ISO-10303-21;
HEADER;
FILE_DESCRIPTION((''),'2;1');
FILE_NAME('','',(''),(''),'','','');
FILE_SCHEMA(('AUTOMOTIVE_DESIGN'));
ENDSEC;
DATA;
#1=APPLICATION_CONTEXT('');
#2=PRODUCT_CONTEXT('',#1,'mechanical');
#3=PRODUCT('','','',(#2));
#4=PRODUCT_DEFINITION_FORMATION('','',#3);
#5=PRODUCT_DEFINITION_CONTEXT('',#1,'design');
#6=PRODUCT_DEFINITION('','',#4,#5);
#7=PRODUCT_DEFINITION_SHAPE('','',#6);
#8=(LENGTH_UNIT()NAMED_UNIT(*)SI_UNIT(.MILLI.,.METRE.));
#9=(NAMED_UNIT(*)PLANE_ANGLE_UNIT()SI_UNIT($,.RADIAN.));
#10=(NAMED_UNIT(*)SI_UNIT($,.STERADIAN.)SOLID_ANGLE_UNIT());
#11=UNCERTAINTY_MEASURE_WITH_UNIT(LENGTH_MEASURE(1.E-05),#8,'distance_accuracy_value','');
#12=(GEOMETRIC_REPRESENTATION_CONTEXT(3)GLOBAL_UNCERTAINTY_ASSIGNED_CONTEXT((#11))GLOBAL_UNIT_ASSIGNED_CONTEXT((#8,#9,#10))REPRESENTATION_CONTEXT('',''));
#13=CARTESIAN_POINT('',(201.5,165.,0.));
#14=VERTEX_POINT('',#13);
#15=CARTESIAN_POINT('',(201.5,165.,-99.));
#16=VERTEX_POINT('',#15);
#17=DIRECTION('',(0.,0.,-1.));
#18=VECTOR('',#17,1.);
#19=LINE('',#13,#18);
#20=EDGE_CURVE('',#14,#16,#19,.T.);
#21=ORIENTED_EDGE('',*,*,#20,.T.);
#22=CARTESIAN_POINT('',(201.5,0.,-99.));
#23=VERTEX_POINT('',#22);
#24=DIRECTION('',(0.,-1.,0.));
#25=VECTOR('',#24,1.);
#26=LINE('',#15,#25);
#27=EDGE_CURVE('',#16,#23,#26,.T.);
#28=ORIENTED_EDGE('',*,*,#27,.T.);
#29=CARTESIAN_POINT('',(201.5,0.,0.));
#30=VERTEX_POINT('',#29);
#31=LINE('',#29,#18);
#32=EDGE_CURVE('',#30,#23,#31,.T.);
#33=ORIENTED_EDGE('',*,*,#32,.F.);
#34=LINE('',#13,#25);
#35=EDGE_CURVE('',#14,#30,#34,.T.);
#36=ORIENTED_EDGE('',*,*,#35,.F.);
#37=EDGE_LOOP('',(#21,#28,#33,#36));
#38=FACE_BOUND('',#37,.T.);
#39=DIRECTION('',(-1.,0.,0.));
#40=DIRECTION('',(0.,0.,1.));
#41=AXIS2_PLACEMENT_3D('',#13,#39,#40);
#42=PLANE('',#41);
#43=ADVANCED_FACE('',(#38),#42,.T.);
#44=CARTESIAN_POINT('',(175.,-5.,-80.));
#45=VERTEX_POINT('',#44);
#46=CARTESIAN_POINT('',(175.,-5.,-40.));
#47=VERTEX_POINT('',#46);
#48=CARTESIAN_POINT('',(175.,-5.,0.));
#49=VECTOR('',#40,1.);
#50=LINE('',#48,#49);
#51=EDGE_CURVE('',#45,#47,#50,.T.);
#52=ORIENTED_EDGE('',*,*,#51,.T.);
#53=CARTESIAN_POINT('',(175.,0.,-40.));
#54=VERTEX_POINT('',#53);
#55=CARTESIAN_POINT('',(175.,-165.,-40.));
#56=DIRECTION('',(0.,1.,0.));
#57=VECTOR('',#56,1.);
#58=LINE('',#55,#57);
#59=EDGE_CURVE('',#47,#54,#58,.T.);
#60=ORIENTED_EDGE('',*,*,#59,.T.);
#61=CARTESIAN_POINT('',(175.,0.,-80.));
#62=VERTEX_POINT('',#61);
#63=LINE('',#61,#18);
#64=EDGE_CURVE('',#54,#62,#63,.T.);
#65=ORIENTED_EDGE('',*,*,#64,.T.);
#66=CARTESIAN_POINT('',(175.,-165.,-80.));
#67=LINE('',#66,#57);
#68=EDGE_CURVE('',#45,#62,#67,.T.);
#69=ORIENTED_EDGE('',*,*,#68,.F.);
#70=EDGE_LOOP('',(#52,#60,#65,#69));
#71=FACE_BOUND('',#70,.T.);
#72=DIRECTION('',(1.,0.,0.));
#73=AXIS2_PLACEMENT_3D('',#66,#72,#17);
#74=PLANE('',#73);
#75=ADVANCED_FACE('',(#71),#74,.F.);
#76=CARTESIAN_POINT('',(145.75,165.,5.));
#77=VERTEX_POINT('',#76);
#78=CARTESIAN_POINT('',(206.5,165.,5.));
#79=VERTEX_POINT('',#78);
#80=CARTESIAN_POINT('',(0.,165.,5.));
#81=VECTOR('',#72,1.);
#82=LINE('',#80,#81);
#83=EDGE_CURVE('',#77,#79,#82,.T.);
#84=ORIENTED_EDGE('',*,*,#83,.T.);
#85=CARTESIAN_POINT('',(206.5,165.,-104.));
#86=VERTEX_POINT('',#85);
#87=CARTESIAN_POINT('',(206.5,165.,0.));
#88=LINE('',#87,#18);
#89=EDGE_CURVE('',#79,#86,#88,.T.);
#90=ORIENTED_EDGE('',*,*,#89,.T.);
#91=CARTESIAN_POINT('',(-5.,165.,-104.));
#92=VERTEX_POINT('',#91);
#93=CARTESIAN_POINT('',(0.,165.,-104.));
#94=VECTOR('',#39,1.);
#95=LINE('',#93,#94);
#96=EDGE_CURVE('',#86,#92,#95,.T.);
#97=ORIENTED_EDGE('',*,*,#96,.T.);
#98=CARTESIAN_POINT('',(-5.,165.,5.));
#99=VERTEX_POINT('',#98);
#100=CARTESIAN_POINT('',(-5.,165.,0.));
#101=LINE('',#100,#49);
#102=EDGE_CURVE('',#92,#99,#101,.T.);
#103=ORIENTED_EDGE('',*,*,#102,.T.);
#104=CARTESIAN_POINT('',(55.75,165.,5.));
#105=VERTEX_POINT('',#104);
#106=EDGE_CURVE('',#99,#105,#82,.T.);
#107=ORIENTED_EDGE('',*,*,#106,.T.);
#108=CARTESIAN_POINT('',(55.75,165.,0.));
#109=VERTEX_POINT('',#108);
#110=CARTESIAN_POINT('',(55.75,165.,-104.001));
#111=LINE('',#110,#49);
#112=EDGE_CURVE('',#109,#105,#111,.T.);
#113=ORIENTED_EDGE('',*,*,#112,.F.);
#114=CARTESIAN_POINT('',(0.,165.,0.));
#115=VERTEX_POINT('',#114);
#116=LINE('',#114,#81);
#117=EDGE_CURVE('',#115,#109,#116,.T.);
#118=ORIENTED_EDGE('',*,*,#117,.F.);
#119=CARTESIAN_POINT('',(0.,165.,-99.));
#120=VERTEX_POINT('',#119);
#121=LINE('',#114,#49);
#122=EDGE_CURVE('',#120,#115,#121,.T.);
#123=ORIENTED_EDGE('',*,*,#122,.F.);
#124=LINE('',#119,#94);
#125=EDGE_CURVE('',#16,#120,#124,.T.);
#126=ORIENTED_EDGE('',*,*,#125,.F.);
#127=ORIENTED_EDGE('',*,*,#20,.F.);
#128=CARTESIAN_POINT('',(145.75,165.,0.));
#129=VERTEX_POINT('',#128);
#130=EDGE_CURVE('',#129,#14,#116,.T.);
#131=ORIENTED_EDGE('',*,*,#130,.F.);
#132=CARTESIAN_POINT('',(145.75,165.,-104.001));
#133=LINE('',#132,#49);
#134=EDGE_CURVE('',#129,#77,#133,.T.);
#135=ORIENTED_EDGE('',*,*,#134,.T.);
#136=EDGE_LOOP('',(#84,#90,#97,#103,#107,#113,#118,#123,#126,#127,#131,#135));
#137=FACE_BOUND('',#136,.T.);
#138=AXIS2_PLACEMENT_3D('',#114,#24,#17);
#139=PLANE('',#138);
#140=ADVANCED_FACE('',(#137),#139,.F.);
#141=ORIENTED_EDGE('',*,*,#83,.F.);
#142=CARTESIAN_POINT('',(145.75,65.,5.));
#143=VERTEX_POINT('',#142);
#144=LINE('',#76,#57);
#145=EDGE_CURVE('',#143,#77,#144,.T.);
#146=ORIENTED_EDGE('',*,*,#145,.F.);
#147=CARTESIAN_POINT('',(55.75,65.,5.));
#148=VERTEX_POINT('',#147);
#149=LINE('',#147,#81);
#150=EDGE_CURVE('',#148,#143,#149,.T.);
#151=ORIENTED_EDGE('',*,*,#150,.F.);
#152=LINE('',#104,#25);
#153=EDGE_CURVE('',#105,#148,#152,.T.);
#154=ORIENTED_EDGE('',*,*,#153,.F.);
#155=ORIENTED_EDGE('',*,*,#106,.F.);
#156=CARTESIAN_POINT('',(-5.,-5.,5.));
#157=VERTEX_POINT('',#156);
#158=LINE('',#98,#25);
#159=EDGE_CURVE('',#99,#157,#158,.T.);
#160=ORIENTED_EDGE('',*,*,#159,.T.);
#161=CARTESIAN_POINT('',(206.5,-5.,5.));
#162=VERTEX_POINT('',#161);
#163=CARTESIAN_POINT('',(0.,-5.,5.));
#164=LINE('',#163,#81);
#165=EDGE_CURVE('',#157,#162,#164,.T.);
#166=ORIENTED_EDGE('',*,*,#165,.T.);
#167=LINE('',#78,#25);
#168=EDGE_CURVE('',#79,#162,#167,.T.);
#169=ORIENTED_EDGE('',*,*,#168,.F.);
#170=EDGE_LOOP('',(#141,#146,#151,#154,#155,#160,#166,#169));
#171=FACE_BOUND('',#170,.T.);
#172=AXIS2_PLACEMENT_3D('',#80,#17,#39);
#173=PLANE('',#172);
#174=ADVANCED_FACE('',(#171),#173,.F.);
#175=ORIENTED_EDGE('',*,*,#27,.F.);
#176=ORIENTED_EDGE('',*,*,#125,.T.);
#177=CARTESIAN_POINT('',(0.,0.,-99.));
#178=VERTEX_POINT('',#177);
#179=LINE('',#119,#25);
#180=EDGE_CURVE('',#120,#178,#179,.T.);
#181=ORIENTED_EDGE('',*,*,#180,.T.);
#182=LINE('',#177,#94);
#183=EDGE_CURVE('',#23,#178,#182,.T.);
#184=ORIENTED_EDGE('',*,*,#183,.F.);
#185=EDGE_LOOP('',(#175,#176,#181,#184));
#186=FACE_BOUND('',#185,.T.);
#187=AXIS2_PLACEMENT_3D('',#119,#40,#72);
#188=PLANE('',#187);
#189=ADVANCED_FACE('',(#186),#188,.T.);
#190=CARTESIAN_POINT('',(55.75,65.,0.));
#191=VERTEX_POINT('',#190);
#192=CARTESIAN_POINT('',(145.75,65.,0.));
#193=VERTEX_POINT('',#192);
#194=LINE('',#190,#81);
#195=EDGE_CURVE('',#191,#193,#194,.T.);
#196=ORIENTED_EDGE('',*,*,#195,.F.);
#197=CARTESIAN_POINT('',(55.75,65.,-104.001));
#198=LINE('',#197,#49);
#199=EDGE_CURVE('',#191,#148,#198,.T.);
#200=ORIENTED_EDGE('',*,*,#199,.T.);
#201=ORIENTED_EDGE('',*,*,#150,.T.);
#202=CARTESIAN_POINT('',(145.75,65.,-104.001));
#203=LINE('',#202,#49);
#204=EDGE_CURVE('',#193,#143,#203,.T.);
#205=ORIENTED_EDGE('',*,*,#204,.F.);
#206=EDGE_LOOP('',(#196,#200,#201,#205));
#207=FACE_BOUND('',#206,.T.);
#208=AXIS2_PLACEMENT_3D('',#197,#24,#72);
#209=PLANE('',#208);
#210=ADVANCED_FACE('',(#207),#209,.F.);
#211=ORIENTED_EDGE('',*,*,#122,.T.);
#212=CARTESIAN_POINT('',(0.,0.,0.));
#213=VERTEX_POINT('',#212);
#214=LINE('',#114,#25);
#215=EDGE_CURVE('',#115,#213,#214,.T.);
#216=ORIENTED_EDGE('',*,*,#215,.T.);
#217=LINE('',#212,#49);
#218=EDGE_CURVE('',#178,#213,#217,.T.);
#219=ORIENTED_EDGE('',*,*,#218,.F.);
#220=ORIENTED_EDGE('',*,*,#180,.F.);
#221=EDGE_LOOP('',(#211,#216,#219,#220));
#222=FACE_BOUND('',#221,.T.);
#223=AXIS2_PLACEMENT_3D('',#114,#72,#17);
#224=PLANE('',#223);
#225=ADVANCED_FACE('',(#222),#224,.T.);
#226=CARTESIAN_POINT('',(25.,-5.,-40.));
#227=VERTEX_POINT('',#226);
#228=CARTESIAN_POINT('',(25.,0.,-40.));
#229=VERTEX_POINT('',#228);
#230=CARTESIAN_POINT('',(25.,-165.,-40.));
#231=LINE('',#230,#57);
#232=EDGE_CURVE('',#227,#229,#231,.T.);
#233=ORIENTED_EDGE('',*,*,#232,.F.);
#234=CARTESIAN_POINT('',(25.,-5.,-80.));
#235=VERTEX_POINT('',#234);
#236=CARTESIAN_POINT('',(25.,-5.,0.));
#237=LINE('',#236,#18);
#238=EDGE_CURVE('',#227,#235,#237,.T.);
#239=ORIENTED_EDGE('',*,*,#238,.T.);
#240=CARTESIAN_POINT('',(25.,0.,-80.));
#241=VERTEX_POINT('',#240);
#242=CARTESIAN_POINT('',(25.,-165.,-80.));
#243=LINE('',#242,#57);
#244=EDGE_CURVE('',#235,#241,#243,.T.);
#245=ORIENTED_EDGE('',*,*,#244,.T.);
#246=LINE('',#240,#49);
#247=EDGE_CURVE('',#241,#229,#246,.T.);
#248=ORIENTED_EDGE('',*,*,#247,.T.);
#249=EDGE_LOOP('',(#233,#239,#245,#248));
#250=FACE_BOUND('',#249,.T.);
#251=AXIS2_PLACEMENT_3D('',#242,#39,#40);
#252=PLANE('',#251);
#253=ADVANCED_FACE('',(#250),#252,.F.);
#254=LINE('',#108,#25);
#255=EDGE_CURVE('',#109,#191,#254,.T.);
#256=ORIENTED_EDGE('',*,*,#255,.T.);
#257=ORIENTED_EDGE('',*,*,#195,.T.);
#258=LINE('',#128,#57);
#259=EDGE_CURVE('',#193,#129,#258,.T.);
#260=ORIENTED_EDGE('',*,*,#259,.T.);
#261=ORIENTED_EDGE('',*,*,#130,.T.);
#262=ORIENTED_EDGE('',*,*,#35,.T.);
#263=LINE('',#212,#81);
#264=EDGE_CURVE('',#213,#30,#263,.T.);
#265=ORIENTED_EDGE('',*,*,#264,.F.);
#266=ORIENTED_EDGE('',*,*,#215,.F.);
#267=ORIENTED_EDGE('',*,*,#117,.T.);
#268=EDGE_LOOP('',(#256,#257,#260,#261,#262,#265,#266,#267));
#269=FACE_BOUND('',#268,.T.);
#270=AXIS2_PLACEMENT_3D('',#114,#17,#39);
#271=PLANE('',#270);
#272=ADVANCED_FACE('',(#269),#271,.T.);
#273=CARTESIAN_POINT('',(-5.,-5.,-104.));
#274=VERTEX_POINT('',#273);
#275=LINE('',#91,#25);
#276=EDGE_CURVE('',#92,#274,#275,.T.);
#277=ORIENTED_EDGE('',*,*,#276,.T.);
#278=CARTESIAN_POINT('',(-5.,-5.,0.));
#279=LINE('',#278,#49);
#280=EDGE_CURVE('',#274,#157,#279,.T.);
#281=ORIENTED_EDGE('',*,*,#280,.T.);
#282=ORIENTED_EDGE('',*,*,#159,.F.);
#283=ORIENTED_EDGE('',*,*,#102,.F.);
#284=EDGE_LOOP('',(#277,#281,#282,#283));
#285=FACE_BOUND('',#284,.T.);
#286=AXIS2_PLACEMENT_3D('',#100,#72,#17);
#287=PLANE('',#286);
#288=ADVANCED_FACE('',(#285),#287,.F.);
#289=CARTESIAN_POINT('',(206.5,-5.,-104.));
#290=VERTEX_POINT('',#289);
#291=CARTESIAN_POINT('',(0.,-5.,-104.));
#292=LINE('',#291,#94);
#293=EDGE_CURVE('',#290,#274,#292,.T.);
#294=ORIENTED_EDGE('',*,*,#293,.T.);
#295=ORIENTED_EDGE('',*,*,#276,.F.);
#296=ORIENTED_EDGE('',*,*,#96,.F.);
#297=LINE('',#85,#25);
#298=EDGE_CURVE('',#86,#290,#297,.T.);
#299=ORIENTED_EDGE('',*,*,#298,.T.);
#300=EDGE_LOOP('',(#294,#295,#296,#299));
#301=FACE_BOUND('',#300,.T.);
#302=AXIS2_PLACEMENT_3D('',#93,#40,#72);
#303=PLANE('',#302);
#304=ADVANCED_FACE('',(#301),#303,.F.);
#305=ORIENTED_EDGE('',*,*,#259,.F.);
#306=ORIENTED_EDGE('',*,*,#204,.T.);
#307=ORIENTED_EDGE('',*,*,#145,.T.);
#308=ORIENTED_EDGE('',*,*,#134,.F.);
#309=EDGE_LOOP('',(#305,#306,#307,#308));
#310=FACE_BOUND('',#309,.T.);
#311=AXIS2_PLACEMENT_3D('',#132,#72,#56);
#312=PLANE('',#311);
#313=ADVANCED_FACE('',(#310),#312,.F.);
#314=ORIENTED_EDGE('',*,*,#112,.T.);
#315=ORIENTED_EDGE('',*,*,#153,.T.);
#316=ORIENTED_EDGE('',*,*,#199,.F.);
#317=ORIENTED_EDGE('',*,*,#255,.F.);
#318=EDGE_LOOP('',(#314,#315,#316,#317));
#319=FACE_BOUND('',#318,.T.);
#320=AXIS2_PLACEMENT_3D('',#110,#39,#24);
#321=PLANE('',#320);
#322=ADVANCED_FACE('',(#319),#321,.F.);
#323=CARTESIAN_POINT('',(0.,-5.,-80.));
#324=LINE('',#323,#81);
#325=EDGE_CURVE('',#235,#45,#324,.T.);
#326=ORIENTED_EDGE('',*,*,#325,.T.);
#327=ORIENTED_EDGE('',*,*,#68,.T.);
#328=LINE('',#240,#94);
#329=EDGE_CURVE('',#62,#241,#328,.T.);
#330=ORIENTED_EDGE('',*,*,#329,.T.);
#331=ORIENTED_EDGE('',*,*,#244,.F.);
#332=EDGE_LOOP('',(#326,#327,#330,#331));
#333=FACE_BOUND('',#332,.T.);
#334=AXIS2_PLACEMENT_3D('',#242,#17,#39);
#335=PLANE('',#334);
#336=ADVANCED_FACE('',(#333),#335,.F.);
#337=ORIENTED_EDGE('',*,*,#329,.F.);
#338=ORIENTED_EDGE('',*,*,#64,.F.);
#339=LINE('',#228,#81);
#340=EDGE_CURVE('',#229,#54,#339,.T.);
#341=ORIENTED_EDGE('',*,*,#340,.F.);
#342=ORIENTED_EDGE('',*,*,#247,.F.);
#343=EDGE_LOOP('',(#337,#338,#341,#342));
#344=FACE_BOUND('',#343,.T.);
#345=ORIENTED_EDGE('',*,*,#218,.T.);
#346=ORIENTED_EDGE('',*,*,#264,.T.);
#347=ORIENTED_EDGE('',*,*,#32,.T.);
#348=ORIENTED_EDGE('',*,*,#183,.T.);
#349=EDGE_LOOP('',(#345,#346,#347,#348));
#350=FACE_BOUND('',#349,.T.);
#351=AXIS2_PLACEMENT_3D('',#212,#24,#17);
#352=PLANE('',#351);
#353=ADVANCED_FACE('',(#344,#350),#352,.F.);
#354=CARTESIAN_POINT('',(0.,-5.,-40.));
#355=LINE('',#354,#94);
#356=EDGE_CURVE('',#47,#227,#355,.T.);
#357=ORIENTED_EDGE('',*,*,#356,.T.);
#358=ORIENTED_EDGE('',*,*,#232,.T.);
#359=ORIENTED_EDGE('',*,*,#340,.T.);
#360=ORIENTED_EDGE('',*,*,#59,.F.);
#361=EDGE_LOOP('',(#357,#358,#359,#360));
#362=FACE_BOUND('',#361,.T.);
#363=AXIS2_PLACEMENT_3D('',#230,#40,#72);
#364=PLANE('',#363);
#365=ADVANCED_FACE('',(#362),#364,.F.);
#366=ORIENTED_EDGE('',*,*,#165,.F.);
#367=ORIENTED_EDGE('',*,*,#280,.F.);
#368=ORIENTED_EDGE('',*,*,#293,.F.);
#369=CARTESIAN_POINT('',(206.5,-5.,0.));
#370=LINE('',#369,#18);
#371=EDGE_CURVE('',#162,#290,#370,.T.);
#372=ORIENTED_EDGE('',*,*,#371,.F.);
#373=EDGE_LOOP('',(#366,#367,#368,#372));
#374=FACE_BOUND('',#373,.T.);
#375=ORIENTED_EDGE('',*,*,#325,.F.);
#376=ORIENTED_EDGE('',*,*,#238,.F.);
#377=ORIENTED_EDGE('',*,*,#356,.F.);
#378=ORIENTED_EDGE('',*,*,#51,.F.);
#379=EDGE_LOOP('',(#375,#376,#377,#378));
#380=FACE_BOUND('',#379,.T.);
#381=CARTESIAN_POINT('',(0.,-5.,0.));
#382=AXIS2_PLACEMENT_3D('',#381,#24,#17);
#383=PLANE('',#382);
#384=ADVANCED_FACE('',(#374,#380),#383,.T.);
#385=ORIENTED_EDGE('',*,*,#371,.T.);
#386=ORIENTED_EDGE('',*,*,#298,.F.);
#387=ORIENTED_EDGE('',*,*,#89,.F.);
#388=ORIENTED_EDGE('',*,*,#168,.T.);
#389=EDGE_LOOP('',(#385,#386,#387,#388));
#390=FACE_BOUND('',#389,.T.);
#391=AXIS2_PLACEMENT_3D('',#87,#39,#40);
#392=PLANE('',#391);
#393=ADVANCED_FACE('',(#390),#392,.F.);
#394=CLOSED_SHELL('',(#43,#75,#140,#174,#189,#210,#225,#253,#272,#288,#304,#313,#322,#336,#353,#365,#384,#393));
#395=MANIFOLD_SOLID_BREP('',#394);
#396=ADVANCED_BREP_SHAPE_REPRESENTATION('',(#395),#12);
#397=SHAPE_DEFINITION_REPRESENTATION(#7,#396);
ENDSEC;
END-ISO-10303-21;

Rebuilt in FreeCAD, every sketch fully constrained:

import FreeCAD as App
import Part
import Sketcher

V = App.Vector
Q = App.Units.Quantity


def faces_at(feature, points):
    """Names of the faces that lie closest to the given points."""
    faces = feature.Shape.Faces
    near = lambda p: min(range(len(faces)), key=lambda i: faces[i].distToShape(Part.Vertex(*p))[0])
    return sorted({f"Face{near(p) + 1}" for p in points})

doc = App.newDocument("Part")
params = doc.addObject("Spreadsheet::Sheet", "Params")
for row, (alias, value) in enumerate([
    ("sketch1_height", "99 mm"),
    ("sketch1_width", "201.5 mm"),
    ("pad1_length", "165 mm"),
    ("thickness_wall", "5 mm"),
    ("sketch2_width", "150 mm"),
    ("sketch2_height", "40 mm"),
    ("pocket1_length", "165 mm"),
    ("sketch3_width", "90 mm"),
    ("sketch3_height", "100 mm"),
], start=1):
    params.set(f"A{row}", alias)
    params.set(f"B{row}", "=" + value)
    params.setAlias(f"B{row}", alias)

body = doc.addObject("PartDesign::Body", "Body")

# Sketch on XZ plane
sketch1 = body.newObject("Sketcher::SketchObject", "Sketch")
sketch1.AttachmentSupport = (doc.getObject("XZ_Plane"), [""])
sketch1.MapMode = "FlatFace"
sketch1.addGeometry(Part.LineSegment(V(0, -99, 0), V(0, 0, 0)), False)
sketch1.addGeometry(Part.LineSegment(V(0, 0, 0), V(201.5, 0, 0)), False)
sketch1.addGeometry(Part.LineSegment(V(201.5, 0, 0), V(201.5, -99, 0)), False)
sketch1.addGeometry(Part.LineSegment(V(201.5, -99, 0), V(0, -99, 0)), False)
sketch1.addConstraint(Sketcher.Constraint("Coincident", 0, 2, 1, 1))
sketch1.addConstraint(Sketcher.Constraint("Coincident", 1, 2, 2, 1))
sketch1.addConstraint(Sketcher.Constraint("Coincident", 2, 2, 3, 1))
sketch1.addConstraint(Sketcher.Constraint("Coincident", 3, 2, 0, 1))
sketch1.addConstraint(Sketcher.Constraint("Vertical", 0))
sketch1.addConstraint(Sketcher.Constraint("Horizontal", 1))
sketch1.addConstraint(Sketcher.Constraint("Vertical", 2))
sketch1.addConstraint(Sketcher.Constraint("Horizontal", 3))
sketch1.addConstraint(Sketcher.Constraint("Coincident", 0, 2, -1, 1))
sketch1.addConstraint(Sketcher.Constraint("DistanceY", 0, 1, 0, 2, Q("99 mm")))
sketch1.addConstraint(Sketcher.Constraint("DistanceX", 1, 1, 1, 2, Q("201.5 mm")))
sketch1.setExpression("Constraints[9]", "Params.sketch1_height")
sketch1.setExpression("Constraints[10]", "Params.sketch1_width")
pad1 = body.newObject("PartDesign::Pad", "Pad")
pad1.Profile = sketch1
pad1.setExpression("Length", "Params.pad1_length")
pad1.Reversed = True
doc.recompute()

thickness = body.newObject("PartDesign::Thickness", "Thickness")
thickness.Base = (pad1, faces_at(pad1, [(100.75, 165, -49.5)]))
thickness.setExpression("Value", "Params.thickness_wall")
thickness.Reversed = False
thickness.Join = "Intersection"

# Sketch on XZ plane
sketch2 = body.newObject("Sketcher::SketchObject", "Sketch001")
sketch2.AttachmentSupport = (doc.getObject("XZ_Plane"), [""])
sketch2.MapMode = "FlatFace"
sketch2.addGeometry(Part.LineSegment(V(25, -80, 0), V(25, -40, 0)), False)
sketch2.addGeometry(Part.LineSegment(V(25, -40, 0), V(175, -40, 0)), False)
sketch2.addGeometry(Part.LineSegment(V(175, -40, 0), V(175, -80, 0)), False)
sketch2.addGeometry(Part.LineSegment(V(175, -80, 0), V(25, -80, 0)), False)
sketch2.addConstraint(Sketcher.Constraint("Coincident", 0, 2, 1, 1))
sketch2.addConstraint(Sketcher.Constraint("Coincident", 1, 2, 2, 1))
sketch2.addConstraint(Sketcher.Constraint("Coincident", 2, 2, 3, 1))
sketch2.addConstraint(Sketcher.Constraint("Coincident", 3, 2, 0, 1))
sketch2.addConstraint(Sketcher.Constraint("Vertical", 0))
sketch2.addConstraint(Sketcher.Constraint("Horizontal", 1))
sketch2.addConstraint(Sketcher.Constraint("Vertical", 2))
sketch2.addConstraint(Sketcher.Constraint("Horizontal", 3))
sketch2.addConstraint(Sketcher.Constraint("DistanceX", 1, 1, 1, 2, Q("150 mm")))
sketch2.addConstraint(Sketcher.Constraint("DistanceY", 0, 1, 0, 2, Q("40 mm")))
sketch2.addConstraint(Sketcher.Constraint("DistanceX", -1, 1, 0, 2, Q("25 mm")))
sketch2.addConstraint(Sketcher.Constraint("DistanceY", 0, 2, -1, 1, Q("40 mm")))
sketch2.setExpression("Constraints[8]", "Params.sketch2_width")
sketch2.setExpression("Constraints[9]", "Params.sketch2_height")
pocket1 = body.newObject("PartDesign::Pocket", "Pocket")
pocket1.Profile = sketch2
pocket1.setExpression("Length", "Params.pocket1_length")
pocket1.Reversed = True

# Sketch on XY plane
sketch3 = body.newObject("Sketcher::SketchObject", "Sketch002")
sketch3.AttachmentSupport = (doc.getObject("XY_Plane"), [""])
sketch3.MapMode = "FlatFace"
sketch3.AttachmentOffset = App.Placement(V(0, 0, 5), App.Rotation())
sketch3.addGeometry(Part.LineSegment(V(55.75, 165, 0), V(55.75, 65, 0)), False)
sketch3.addGeometry(Part.LineSegment(V(55.75, 65, 0), V(145.75, 65, 0)), False)
sketch3.addGeometry(Part.LineSegment(V(145.75, 65, 0), V(145.75, 165, 0)), False)
sketch3.addGeometry(Part.LineSegment(V(145.75, 165, 0), V(55.75, 165, 0)), False)
sketch3.addConstraint(Sketcher.Constraint("Coincident", 0, 2, 1, 1))
sketch3.addConstraint(Sketcher.Constraint("Coincident", 1, 2, 2, 1))
sketch3.addConstraint(Sketcher.Constraint("Coincident", 2, 2, 3, 1))
sketch3.addConstraint(Sketcher.Constraint("Coincident", 3, 2, 0, 1))
sketch3.addConstraint(Sketcher.Constraint("Vertical", 0))
sketch3.addConstraint(Sketcher.Constraint("Horizontal", 1))
sketch3.addConstraint(Sketcher.Constraint("Vertical", 2))
sketch3.addConstraint(Sketcher.Constraint("Horizontal", 3))
sketch3.addConstraint(Sketcher.Constraint("DistanceX", 1, 1, 1, 2, Q("90 mm")))
sketch3.addConstraint(Sketcher.Constraint("DistanceY", 0, 2, 0, 1, Q("100 mm")))
sketch3.addConstraint(Sketcher.Constraint("DistanceY", -1, 1, 0, 2, Q("65 mm")))
sketch3.addConstraint(Sketcher.Constraint("DistanceX", -1, 1, 0, 2, Q("55.75 mm")))
sketch3.setExpression("Constraints[8]", "Params.sketch3_width")
sketch3.setExpression("Constraints[9]", "Params.sketch3_height")
pocket2 = body.newObject("PartDesign::Pocket", "Pocket001")
pocket2.Profile = sketch3
pocket2.Type = "UpToFirst"

doc.recompute()
